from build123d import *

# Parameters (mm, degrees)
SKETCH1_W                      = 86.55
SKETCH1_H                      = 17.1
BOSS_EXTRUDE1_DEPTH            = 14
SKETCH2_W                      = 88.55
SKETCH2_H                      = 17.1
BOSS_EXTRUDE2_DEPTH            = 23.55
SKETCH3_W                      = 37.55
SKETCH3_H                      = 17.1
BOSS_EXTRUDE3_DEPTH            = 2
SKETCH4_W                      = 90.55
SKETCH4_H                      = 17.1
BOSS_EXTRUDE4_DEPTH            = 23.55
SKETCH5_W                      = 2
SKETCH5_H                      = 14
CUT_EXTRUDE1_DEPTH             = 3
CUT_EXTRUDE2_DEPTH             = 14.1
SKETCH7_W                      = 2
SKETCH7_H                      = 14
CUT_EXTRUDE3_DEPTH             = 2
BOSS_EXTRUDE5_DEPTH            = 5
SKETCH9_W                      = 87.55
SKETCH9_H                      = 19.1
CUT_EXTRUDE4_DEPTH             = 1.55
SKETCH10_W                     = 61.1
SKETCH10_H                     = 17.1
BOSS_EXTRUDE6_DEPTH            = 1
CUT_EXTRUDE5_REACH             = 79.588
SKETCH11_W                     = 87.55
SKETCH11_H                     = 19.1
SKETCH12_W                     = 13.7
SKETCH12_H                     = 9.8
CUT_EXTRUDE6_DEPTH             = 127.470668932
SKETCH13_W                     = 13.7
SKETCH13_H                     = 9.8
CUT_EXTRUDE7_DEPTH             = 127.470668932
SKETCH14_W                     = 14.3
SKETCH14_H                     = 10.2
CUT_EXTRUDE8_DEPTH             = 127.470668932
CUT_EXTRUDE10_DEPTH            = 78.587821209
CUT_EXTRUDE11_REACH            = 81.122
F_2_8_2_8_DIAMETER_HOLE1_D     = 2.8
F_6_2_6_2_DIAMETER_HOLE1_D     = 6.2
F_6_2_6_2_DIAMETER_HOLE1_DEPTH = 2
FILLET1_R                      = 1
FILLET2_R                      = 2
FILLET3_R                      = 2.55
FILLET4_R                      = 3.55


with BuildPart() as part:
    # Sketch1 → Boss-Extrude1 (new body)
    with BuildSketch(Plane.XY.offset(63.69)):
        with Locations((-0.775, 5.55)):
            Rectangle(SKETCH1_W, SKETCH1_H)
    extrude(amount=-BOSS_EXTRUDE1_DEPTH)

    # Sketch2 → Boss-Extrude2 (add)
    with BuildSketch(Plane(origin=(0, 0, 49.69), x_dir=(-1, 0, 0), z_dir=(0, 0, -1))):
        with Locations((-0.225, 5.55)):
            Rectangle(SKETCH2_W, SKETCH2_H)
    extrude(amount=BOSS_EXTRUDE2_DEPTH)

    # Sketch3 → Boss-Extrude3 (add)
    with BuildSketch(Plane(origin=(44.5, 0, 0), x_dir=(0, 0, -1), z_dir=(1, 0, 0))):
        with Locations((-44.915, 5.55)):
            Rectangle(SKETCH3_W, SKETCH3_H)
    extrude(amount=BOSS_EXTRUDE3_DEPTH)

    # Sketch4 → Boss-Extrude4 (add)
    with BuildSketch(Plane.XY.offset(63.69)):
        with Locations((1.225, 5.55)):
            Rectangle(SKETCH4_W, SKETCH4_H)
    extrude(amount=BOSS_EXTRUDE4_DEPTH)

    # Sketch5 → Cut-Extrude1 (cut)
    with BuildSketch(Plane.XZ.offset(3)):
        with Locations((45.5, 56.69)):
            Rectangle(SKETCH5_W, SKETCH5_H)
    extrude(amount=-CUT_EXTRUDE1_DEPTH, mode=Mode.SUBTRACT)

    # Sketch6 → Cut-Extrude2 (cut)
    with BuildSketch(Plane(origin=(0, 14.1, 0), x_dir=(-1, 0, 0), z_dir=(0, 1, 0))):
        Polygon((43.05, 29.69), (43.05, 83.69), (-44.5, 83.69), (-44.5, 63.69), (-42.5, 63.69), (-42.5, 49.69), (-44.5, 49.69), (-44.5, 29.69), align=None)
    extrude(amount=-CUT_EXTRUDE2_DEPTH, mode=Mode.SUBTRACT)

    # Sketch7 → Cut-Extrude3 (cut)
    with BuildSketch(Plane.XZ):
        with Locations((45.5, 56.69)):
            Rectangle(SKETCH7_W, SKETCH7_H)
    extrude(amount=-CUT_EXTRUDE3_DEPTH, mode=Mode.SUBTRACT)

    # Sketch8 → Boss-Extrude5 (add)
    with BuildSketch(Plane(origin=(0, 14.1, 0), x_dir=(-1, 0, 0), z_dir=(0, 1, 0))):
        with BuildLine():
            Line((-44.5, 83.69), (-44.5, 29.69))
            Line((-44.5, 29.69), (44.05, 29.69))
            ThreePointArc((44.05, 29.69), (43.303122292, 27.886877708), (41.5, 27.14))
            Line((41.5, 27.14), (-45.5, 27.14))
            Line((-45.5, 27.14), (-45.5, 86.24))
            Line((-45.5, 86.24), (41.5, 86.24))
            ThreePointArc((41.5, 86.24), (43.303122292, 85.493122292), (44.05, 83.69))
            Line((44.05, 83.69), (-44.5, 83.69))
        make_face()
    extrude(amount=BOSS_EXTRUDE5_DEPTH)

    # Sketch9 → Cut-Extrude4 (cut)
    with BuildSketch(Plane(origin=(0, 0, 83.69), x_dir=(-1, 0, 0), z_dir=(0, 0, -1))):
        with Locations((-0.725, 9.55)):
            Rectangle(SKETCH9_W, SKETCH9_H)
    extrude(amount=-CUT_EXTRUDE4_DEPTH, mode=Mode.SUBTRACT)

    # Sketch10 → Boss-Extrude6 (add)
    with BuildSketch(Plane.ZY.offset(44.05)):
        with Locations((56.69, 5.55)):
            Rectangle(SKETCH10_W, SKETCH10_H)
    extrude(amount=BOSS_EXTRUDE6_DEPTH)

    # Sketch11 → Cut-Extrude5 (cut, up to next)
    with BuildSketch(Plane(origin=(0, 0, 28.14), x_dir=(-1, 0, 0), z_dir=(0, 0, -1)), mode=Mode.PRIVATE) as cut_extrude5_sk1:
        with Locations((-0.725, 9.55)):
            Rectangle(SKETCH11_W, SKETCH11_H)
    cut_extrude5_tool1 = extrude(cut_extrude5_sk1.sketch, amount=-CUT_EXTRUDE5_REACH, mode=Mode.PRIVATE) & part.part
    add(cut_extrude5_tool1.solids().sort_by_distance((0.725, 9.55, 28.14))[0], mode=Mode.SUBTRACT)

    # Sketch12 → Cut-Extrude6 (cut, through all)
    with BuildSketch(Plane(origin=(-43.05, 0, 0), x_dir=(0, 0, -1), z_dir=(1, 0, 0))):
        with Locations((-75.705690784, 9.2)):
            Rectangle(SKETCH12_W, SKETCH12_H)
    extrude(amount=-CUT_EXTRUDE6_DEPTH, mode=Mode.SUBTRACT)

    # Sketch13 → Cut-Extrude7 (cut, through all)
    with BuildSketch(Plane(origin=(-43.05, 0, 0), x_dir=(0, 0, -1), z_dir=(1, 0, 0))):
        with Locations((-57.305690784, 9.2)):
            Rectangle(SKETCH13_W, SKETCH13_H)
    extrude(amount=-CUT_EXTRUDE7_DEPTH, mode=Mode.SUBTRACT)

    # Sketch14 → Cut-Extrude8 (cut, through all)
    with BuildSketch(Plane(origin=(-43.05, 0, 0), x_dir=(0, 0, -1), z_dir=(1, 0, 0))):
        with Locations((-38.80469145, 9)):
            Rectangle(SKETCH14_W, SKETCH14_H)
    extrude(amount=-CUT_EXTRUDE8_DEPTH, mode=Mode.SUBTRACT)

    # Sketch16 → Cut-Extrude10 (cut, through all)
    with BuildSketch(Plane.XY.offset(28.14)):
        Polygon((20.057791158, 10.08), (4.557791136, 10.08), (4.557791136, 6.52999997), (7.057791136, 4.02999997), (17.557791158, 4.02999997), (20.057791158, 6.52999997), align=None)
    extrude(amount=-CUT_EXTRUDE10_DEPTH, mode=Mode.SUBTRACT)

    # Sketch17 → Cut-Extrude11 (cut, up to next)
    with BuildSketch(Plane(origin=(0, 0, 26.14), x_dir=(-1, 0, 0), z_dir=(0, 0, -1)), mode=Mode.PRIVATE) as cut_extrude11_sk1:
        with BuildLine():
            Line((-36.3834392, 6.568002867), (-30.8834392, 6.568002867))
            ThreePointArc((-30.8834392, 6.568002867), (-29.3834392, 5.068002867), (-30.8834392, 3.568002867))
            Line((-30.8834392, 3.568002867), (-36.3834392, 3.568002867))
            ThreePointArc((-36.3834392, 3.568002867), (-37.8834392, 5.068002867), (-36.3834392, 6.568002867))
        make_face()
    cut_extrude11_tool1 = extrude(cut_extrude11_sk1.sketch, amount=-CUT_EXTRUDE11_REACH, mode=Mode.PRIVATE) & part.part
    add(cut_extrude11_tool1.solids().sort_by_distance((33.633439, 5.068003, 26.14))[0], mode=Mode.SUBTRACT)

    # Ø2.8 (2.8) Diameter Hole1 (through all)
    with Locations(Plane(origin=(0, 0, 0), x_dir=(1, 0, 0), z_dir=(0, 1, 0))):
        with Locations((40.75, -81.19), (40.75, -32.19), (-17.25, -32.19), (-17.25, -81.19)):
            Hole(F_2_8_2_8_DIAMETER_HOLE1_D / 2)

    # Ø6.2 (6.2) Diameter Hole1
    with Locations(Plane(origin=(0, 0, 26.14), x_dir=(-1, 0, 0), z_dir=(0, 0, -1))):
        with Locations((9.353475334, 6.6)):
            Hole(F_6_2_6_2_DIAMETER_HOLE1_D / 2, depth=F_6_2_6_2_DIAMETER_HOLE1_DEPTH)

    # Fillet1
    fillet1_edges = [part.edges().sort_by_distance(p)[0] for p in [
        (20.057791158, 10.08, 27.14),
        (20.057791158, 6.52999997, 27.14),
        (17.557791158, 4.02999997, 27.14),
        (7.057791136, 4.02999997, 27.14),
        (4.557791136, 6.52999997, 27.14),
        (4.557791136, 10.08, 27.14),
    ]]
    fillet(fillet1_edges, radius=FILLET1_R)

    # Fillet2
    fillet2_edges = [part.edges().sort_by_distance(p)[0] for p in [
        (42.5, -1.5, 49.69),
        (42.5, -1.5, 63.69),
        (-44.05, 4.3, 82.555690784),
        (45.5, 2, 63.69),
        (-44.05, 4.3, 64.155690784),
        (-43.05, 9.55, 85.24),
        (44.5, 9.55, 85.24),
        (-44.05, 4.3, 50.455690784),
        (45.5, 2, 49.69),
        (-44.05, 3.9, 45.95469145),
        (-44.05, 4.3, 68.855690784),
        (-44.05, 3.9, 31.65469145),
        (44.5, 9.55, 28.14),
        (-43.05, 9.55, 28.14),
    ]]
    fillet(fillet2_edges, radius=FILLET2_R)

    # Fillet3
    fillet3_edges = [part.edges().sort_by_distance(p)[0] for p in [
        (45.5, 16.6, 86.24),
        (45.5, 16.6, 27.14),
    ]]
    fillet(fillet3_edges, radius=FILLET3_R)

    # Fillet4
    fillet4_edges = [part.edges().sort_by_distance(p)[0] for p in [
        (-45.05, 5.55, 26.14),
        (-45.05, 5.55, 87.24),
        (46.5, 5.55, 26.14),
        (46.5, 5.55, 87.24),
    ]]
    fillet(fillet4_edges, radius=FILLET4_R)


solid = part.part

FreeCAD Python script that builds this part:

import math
import FreeCAD as App
import Part
import Sketcher

V = App.Vector
Q = App.Units.Quantity


def edges_at(feature, points):
    """Names of the edges that pass closest to the given points."""
    edges = feature.Shape.Edges
    near = lambda p: min(range(len(edges)), key=lambda i: edges[i].distToShape(Part.Vertex(*p))[0])
    return sorted({f"Edge{near(p) + 1}" for p in points})


def add_polygon(sketch, points):
    """Adds a closed chain of lines whose ends are joined by coincident constraints."""
    first, n = sketch.GeometryCount, len(points)
    for a, b in zip(points, points[1:] + points[:1]):
        sketch.addGeometry(Part.LineSegment(App.Vector(*a, 0), App.Vector(*b, 0)), False)
    for i in range(n):
        sketch.addConstraint(Sketcher.Constraint("Coincident", first + i, 2, first + (i + 1) % n, 1))

doc = App.newDocument("Part")
params = doc.addObject("Spreadsheet::Sheet", "Params")
for row, (alias, value) in enumerate([
    ("sketch1_height", "17.1 mm"),
    ("sketch1_width", "86.55 mm"),
    ("pad1_length", "14 mm"),
    ("sketch2_height", "17.1 mm"),
    ("sketch2_width", "88.55 mm"),
    ("pad2_length", "23.55 mm"),
    ("sketch3_width", "17.1 mm"),
    ("sketch3_height", "37.55 mm"),
    ("pad3_length", "2 mm"),
    ("sketch4_height", "17.1 mm"),
    ("sketch4_width", "90.55 mm"),
    ("pad4_length", "23.55 mm"),
    ("sketch5_width", "2 mm"),
    ("sketch5_height", "14 mm"),
    ("pocket1_length", "3 mm"),
    ("sketch6_width", "2 mm"),
    ("sketch6_height", "54 mm"),
    ("sketch6_height2", "20 mm"),
    ("sketch6_width2", "87.55 mm"),
    ("pocket2_length", "14.1 mm"),
    ("sketch7_width", "2 mm"),
    ("sketch7_height", "14 mm"),
    ("pocket3_length", "2 mm"),
    ("sketch8_width", "87 mm"),
    ("sketch8_height", "54 mm"),
    ("sketch8_radius", "2.55 mm"),
    ("sketch8_height2", "59.1 mm"),
    ("pad5_length", "5 mm"),
    ("sketch9_height", "19.1 mm"),
    ("sketch9_width", "87.55 mm"),
    ("pocket4_length", "1.55 mm"),
    ("sketch10_width", "17.1 mm"),
    ("sketch10_height", "61.1 mm"),
    ("pad6_length", "1 mm"),
    ("sketch11_height", "19.1 mm"),
    ("sketch11_width", "87.55 mm"),
    ("sketch12_width", "9.8 mm"),
    ("sketch12_height", "13.7 mm"),
    ("sketch13_width", "9.8 mm"),
    ("sketch13_height", "13.7 mm"),
    ("sketch14_width", "10.2 mm"),
    ("sketch14_height", "14.3 mm"),
    ("sketch15_width", "15.5 mm"),
    ("sketch15_width2", "10.5 mm"),
    ("sketch15_height", "3.55 mm"),
    ("sketch16_radius", "1.5 mm"),
    ("sketch16_width", "5.5 mm"),
    ("sketch17_diameter", "2.8 mm"),
    ("hole_diameter", "2.8 mm"),
    ("sketch18_diameter", "6.2 mm"),
    ("hole2_diameter", "6.2 mm"),
    ("hole2_depth", "2 mm"),
    ("fillet_radius", "1 mm"),
    ("fillet2_radius", "2 mm"),
    ("fillet3_radius", "2.55 mm"),
    ("fillet4_radius", "3.55 mm"),
], start=1):
    params.set(f"A{row}", alias)
    params.set(f"B{row}", "=" + value)
    params.setAlias(f"B{row}", alias)

body = doc.addObject("PartDesign::Body", "Body")

# Sketch on XY plane
sketch1 = body.newObject("Sketcher::SketchObject", "Sketch")
sketch1.AttachmentSupport = (doc.getObject("XY_Plane"), [""])
sketch1.MapMode = "FlatFace"
sketch1.AttachmentOffset = App.Placement(V(0, 0, 63.69), App.Rotation())
add_polygon(sketch1, [(-44, 14), (-44, -3), (42, -3), (42, 14)])  # lines 0-3
sketch1.addConstraint([
    Sketcher.Constraint("Vertical", 0),
    Sketcher.Constraint("Horizontal", 1),
    Sketcher.Constraint("Vertical", 2),
    Sketcher.Constraint("Horizontal", 3),
    Sketcher.Constraint("DistanceY", 0, 2, 0, 1, Q("17.1 mm")),
    Sketcher.Constraint("DistanceY", 0, 2, -1, 1, Q("3 mm")),
    Sketcher.Constraint("DistanceX", 1, 1, 1, 2, Q("86.55 mm")),
    Sketcher.Constraint("DistanceX", -1, 1, 1, 2, Q("42.5 mm")),
])
sketch1.setExpression("Constraints[8]", "Params.sketch1_height")
sketch1.setExpression("Constraints[10]", "Params.sketch1_width")
pad1 = body.newObject("PartDesign::Pad", "Pad")
pad1.Profile = sketch1
pad1.setExpression("Length", "Params.pad1_length")
pad1.Reversed = True

# Sketch on XY plane
sketch2 = body.newObject("Sketcher::SketchObject", "Sketch001")
sketch2.AttachmentSupport = (doc.getObject("XY_Plane"), [""])
sketch2.MapMode = "FlatFace"
sketch2.AttachmentOffset = App.Placement(V(0, 0, 49.69), App.Rotation())
add_polygon(sketch2, [(44, 14), (44, -3), (-44, -3), (-44, 14)])  # lines 0-3
sketch2.addConstraint([
    Sketcher.Constraint("Vertical", 0),
    Sketcher.Constraint("Horizontal", 1),
    Sketcher.Constraint("Vertical", 2),
    Sketcher.Constraint("Horizontal", 3),
    Sketcher.Constraint("DistanceY", 0, 2, 0, 1, Q("17.1 mm")),
    Sketcher.Constraint("DistanceY", 0, 2, -1, 1, Q("3 mm")),
    Sketcher.Constraint("DistanceX", 1, 2, 1, 1, Q("88.55 mm")),
    Sketcher.Constraint("DistanceX", -1, 1, 0, 2, Q("44.5 mm")),
])
sketch2.setExpression("Constraints[8]", "Params.sketch2_height")
sketch2.setExpression("Constraints[10]", "Params.sketch2_width")
pad2 = body.newObject("PartDesign::Pad", "Pad001")
pad2.Profile = sketch2
pad2.setExpression("Length", "Params.pad2_length")
pad2.Reversed = True

# Sketch on YZ plane
sketch3 = body.newObject("Sketcher::SketchObject", "Sketch002")
sketch3.AttachmentSupport = (doc.getObject("YZ_Plane"), [""])
sketch3.MapMode = "FlatFace"
sketch3.AttachmentOffset = App.Placement(V(0, 0, 44.5), App.Rotation())
add_polygon(sketch3, [(14, 64), (-3, 64), (-3, 26), (14, 26)])  # lines 0-3
sketch3.addConstraint([
    Sketcher.Constraint("Horizontal", 0),
    Sketcher.Constraint("Vertical", 1),
    Sketcher.Constraint("Horizontal", 2),
    Sketcher.Constraint("Vertical", 3),
    Sketcher.Constraint("DistanceX", 0, 2, 0, 1, Q("17.1 mm")),
    Sketcher.Constraint("DistanceX", 0, 2, -1, 1, Q("3 mm")),
    Sketcher.Constraint("DistanceY", 1, 2, 1, 1, Q("37.55 mm")),
    Sketcher.Constraint("DistanceY", -1, 1, 0, 2, Q("63.69 mm")),
])
sketch3.setExpression("Constraints[8]", "Params.sketch3_width")
sketch3.setExpression("Constraints[10]", "Params.sketch3_height")
pad3 = body.newObject("PartDesign::Pad", "Pad002")
pad3.Profile = sketch3
pad3.setExpression("Length", "Params.pad3_length")

# Sketch on XY plane
sketch4 = body.newObject("Sketcher::SketchObject", "Sketch003")
sketch4.AttachmentSupport = (doc.getObject("XY_Plane"), [""])
sketch4.MapMode = "FlatFace"
sketch4.AttachmentOffset = App.Placement(V(0, 0, 63.69), App.Rotation())
add_polygon(sketch4, [(-44, 14), (-44, -3), (46, -3), (46, 14)])  # lines 0-3
sketch4.addConstraint([
    Sketcher.Constraint("Vertical", 0),
    Sketcher.Constraint("Horizontal", 1),
    Sketcher.Constraint("Vertical", 2),
    Sketcher.Constraint("Horizontal", 3),
    Sketcher.Constraint("DistanceY", 0, 2, 0, 1, Q("17.1 mm")),
    Sketcher.Constraint("DistanceY", 0, 2, -1, 1, Q("3 mm")),
    Sketcher.Constraint("DistanceX", 1, 1, 1, 2, Q("90.55 mm")),
    Sketcher.Constraint("DistanceX", -1, 1, 1, 2, Q("46.5 mm")),
])
sketch4.setExpression("Constraints[8]", "Params.sketch4_height")
sketch4.setExpression("Constraints[10]", "Params.sketch4_width")
pad4 = body.newObject("PartDesign::Pad", "Pad003")
pad4.Profile = sketch4
pad4.setExpression("Length", "Params.pad4_length")

# Sketch on XZ plane
sketch5 = body.newObject("Sketcher::SketchObject", "Sketch004")
sketch5.AttachmentSupport = (doc.getObject("XZ_Plane"), [""])
sketch5.MapMode = "FlatFace"
sketch5.AttachmentOffset = App.Placement(V(0, 0, 3), App.Rotation())
add_polygon(sketch5, [(44.5, 63.7), (44.5, 49.7), (46.5, 49.7), (46.5, 63.7)])  # lines 0-3
sketch5.addConstraint([
    Sketcher.Constraint("Vertical", 0),
    Sketcher.Constraint("Horizontal", 1),
    Sketcher.Constraint("Vertical", 2),
    Sketcher.Constraint("Horizontal", 3),
    Sketcher.Constraint("DistanceX", 1, 1, 1, 2, Q("2 mm")),
    Sketcher.Constraint("DistanceY", 0, 2, 0, 1, Q("14 mm")),
    Sketcher.Constraint("DistanceX", -1, 1, 0, 2, Q("44.5 mm")),
    Sketcher.Constraint("DistanceY", -1, 1, 0, 2, Q("49.69 mm")),
])
sketch5.setExpression("Constraints[8]", "Params.sketch5_width")
sketch5.setExpression("Constraints[9]", "Params.sketch5_height")
pocket1 = body.newObject("PartDesign::Pocket", "Pocket")
pocket1.Profile = sketch5
pocket1.setExpression("Length", "Params.pocket1_length")

# Sketch on XZ plane
sketch6 = body.newObject("Sketcher::SketchObject", "Sketch005")
sketch6.AttachmentSupport = (doc.getObject("XZ_Plane"), [""])
sketch6.MapMode = "FlatFace"
sketch6.AttachmentOffset = App.Placement(V(0, 0, -14.1), App.Rotation())
add_polygon(sketch6, [(-43, 29.7), (-43, 83.7), (44.5, 83.7), (44.5, 63.7), (42.5, 63.7), (42.5, 49.7), (44.5, 49.7), (44.5, 29.7)])  # lines 0-7
sketch6.addConstraint([
    Sketcher.Constraint("Vertical", 0),
    Sketcher.Constraint("Horizontal", 1),
    Sketcher.Constraint("Vertical", 2),
    Sketcher.Constraint("Horizontal", 3),
    Sketcher.Constraint("Vertical", 4),
    Sketcher.Constraint("Horizontal", 5),
    Sketcher.Constraint("Vertical", 6),
    Sketcher.Constraint("Horizontal", 7),
    Sketcher.Constraint("Vertical", 2, 2, 5, 2),
    Sketcher.Constraint("Equal", 2, 6),
    Sketcher.Constraint("DistanceX", 3, 2, 3, 1, Q("2 mm")),
    Sketcher.Constraint("DistanceY", 0, 1, 0, 2, Q("54 mm")),
    Sketcher.Constraint("DistanceY", 2, 2, 2, 1, Q("20 mm")),
    Sketcher.Constraint("DistanceX", 1, 1, 1, 2, Q("87.55 mm")),
    Sketcher.Constraint("DistanceX", -1, 1, 1, 2, Q("44.5 mm")),
    Sketcher.Constraint("DistanceY", -1, 1, 0, 2, Q("83.69 mm")),
])
sketch6.setExpression("Constraints[18]", "Params.sketch6_width")
sketch6.setExpression("Constraints[19]", "Params.sketch6_height")
sketch6.setExpression("Constraints[20]", "Params.sketch6_height2")
sketch6.setExpression("Constraints[21]", "Params.sketch6_width2")
pocket2 = body.newObject("PartDesign::Pocket", "Pocket001")
pocket2.Profile = sketch6
pocket2.setExpression("Length", "Params.pocket2_length")
pocket2.Reversed = True

# Sketch on XZ plane
sketch7 = body.newObject("Sketcher::SketchObject", "Sketch006")
sketch7.AttachmentSupport = (doc.getObject("XZ_Plane"), [""])
sketch7.MapMode = "FlatFace"
add_polygon(sketch7, [(44.5, 63.7), (44.5, 49.7), (46.5, 49.7), (46.5, 63.7)])  # lines 0-3
sketch7.addConstraint([
    Sketcher.Constraint("Vertical", 0),
    Sketcher.Constraint("Horizontal", 1),
    Sketcher.Constraint("Vertical", 2),
    Sketcher.Constraint("Horizontal", 3),
    Sketcher.Constraint("DistanceX", 1, 1, 1, 2, Q("2 mm")),
    Sketcher.Constraint("DistanceY", 0, 2, 0, 1, Q("14 mm")),
    Sketcher.Constraint("DistanceX", -1, 1, 0, 2, Q("44.5 mm")),
    Sketcher.Constraint("DistanceY", -1, 1, 0, 2, Q("49.69 mm")),
])
sketch7.setExpression("Constraints[8]", "Params.sketch7_width")
sketch7.setExpression("Constraints[9]", "Params.sketch7_height")
pocket3 = body.newObject("PartDesign::Pocket", "Pocket002")
pocket3.Profile = sketch7
pocket3.setExpression("Length", "Params.pocket3_length")

# Sketch on XZ plane
sketch8 = body.newObject("Sketcher::SketchObject", "Sketch007")
sketch8.AttachmentSupport = (doc.getObject("XZ_Plane"), [""])
sketch8.MapMode = "FlatFace"
sketch8.AttachmentOffset = App.Placement(V(0, 0, -14.1), App.Rotation())
sketch8.addGeometry([
    Part.LineSegment(V(44.5, 29.7, 0), V(44.5, 83.7, 0)),  # 0
    Part.LineSegment(V(44.5, 83.7, 0), V(-44, 83.7, 0)),  # 1
    Part.ArcOfCircle(Part.Circle(V(-41.5, 83.7, 0), V(0, 0, 1), 2.5), math.radians(90), math.radians(180)),  # 2
    Part.LineSegment(V(-41.5, 86.2, 0), V(45.5, 86.2, 0)),  # 3
    Part.LineSegment(V(45.5, 86.2, 0), V(45.5, 27.1, 0)),  # 4
    Part.LineSegment(V(45.5, 27.1, 0), V(-41.5, 27.1, 0)),  # 5
    Part.ArcOfCircle(Part.Circle(V(-41.5, 29.7, 0), V(0, 0, 1), 2.5), math.radians(180), math.radians(270)),  # 6
    Part.LineSegment(V(-44, 29.7, 0), V(44.5, 29.7, 0)),  # 7
], False)
sketch8.addConstraint([
    Sketcher.Constraint("Coincident", 0, 2, 1, 1),
    Sketcher.Constraint("Coincident", 1, 2, 2, 2),
    Sketcher.Constraint("Tangent", 2, 1, 3, 1),
    Sketcher.Constraint("Coincident", 3, 2, 4, 1),
    Sketcher.Constraint("Coincident", 4, 2, 5, 1),
    Sketcher.Constraint("Tangent", 5, 2, 6, 2),
    Sketcher.Constraint("Coincident", 6, 1, 7, 1),
    Sketcher.Constraint("Coincident", 7, 2, 0, 1),
    Sketcher.Constraint("Vertical", 0),
    Sketcher.Constraint("Horizontal", 1),
    Sketcher.Constraint("Horizontal", 3),
    Sketcher.Constraint("Vertical", 4),
    Sketcher.Constraint("Horizontal", 5),
    Sketcher.Constraint("Horizontal", 7),
    Sketcher.Constraint("Equal", 2, 6),
    Sketcher.Constraint("Horizontal", 2, 3, 0, 2),
    Sketcher.Constraint("Vertical", 2, 3, 6, 3),
    Sketcher.Constraint("DistanceX", 3, 1, 3, 2, Q("87 mm")),
    Sketcher.Constraint("DistanceY", 0, 1, 0, 2, Q("54 mm")),
    Sketcher.Constraint("Radius", 2, Q("2.55 mm")),
    Sketcher.Constraint("DistanceY", 4, 2, 4, 1, Q("59.1 mm")),
    Sketcher.Constraint("DistanceX", 2, 3, 0, 2, Q("86 mm")),
    Sketcher.Constraint("DistanceX", 2, 3, -1, 1, Q("41.5 mm")),
    Sketcher.Constraint("DistanceY", -1, 1, 2, 3, Q("83.69 mm")),
])
sketch8.setExpression("Constraints[17]", "Params.sketch8_width")
sketch8.setExpression("Constraints[18]", "Params.sketch8_height")
sketch8.setExpression("Constraints[19]", "Params.sketch8_radius")
sketch8.setExpression("Constraints[20]", "Params.sketch8_height2")
pad5 = body.newObject("PartDesign::Pad", "Pad004")
pad5.Profile = sketch8
pad5.setExpression("Length", "Params.pad5_length")
pad5.Reversed = True

# Sketch on XY plane
sketch9 = body.newObject("Sketcher::SketchObject", "Sketch008")
sketch9.AttachmentSupport = (doc.getObject("XY_Plane"), [""])
sketch9.MapMode = "FlatFace"
sketch9.AttachmentOffset = App.Placement(V(0, 0, 83.69), App.Rotation())
add_polygon(sketch9, [(44, 19), (44, 0), (-43, 0), (-43, 19)])  # lines 0-3
sketch9.addConstraint([
    Sketcher.Constraint("Vertical", 0),
    Sketcher.Constraint("Horizontal", 1),
    Sketcher.Constraint("Vertical", 2),
    Sketcher.Constraint("Horizontal", 3),
    Sketcher.Constraint("PointOnObject", 0, 2, -1),
    Sketcher.Constraint("DistanceY", 0, 2, 0, 1, Q("19.1 mm")),
    Sketcher.Constraint("DistanceX", 1, 2, 1, 1, Q("87.55 mm")),
    Sketcher.Constraint("DistanceX", -1, 1, 0, 2, Q("44.5 mm")),
])
sketch9.setExpression("Constraints[9]", "Params.sketch9_height")
sketch9.setExpression("Constraints[10]", "Params.sketch9_width")
pocket4 = body.newObject("PartDesign::Pocket", "Pocket003")
pocket4.Profile = sketch9
pocket4.setExpression("Length", "Params.pocket4_length")
pocket4.Reversed = True

# Sketch on YZ plane
sketch10 = body.newObject("Sketcher::SketchObject", "Sketch009")
sketch10.AttachmentSupport = (doc.getObject("YZ_Plane"), [""])
sketch10.MapMode = "FlatFace"
sketch10.AttachmentOffset = App.Placement(V(0, 0, -44.05), App.Rotation())
add_polygon(sketch10, [(14, 26), (-3, 26), (-3, 87), (14, 87)])  # lines 0-3
sketch10.addConstraint([
    Sketcher.Constraint("Horizontal", 0),
    Sketcher.Constraint("Vertical", 1),
    Sketcher.Constraint("Horizontal", 2),
    Sketcher.Constraint("Vertical", 3),
    Sketcher.Constraint("DistanceX", 0, 2, 0, 1, Q("17.1 mm")),
    Sketcher.Constraint("DistanceY", 1, 1, 1, 2, Q("61.1 mm")),
    Sketcher.Constraint("DistanceX", 0, 2, -1, 1, Q("3 mm")),
    Sketcher.Constraint("DistanceY", -1, 1, 0, 2, Q("26.14 mm")),
])
sketch10.setExpression("Constraints[8]", "Params.sketch10_width")
sketch10.setExpression("Constraints[9]", "Params.sketch10_height")
pad6 = body.newObject("PartDesign::Pad", "Pad005")
pad6.Profile = sketch10
pad6.setExpression("Length", "Params.pad6_length")
pad6.Reversed = True

# Sketch on XY plane
sketch11 = body.newObject("Sketcher::SketchObject", "Sketch010")
sketch11.AttachmentSupport = (doc.getObject("XY_Plane"), [""])
sketch11.MapMode = "FlatFace"
sketch11.AttachmentOffset = App.Placement(V(0, 0, 28.14), App.Rotation())
add_polygon(sketch11, [(44, 19), (44, 0), (-43, 0), (-43, 19)])  # lines 0-3
sketch11.addConstraint([
    Sketcher.Constraint("Vertical", 0),
    Sketcher.Constraint("Horizontal", 1),
    Sketcher.Constraint("Vertical", 2),
    Sketcher.Constraint("Horizontal", 3),
    Sketcher.Constraint("PointOnObject", 0, 2, -1),
    Sketcher.Constraint("DistanceY", 0, 2, 0, 1, Q("19.1 mm")),
    Sketcher.Constraint("DistanceX", 1, 2, 1, 1, Q("87.55 mm")),
    Sketcher.Constraint("DistanceX", -1, 1, 0, 2, Q("44.5 mm")),
])
sketch11.setExpression("Constraints[9]", "Params.sketch11_height")
sketch11.setExpression("Constraints[10]", "Params.sketch11_width")
pocket5 = body.newObject("PartDesign::Pocket", "Pocket004")
pocket5.Profile = sketch11
pocket5.Type = "UpToFirst"
pocket5.Reversed = True

# Sketch on YZ plane
sketch12 = body.newObject("Sketcher::SketchObject", "Sketch011")
sketch12.AttachmentSupport = (doc.getObject("YZ_Plane"), [""])
sketch12.MapMode = "FlatFace"
sketch12.AttachmentOffset = App.Placement(V(0, 0, -43.05), App.Rotation())
add_polygon(sketch12, [(14, 83), (4, 83), (4, 69), (14, 69)])  # lines 0-3
sketch12.addConstraint([
    Sketcher.Constraint("Horizontal", 0),
    Sketcher.Constraint("Vertical", 1),
    Sketcher.Constraint("Horizontal", 2),
    Sketcher.Constraint("Vertical", 3),
    Sketcher.Constraint("DistanceX", 0, 2, 0, 1, Q("9.8 mm")),
    Sketcher.Constraint("DistanceY", 1, 2, 1, 1, Q("13.7 mm")),
    Sketcher.Constraint("DistanceX", -1, 1, 0, 2, Q("4.3 mm")),
    Sketcher.Constraint("DistanceY", -1, 1, 0, 2, Q("82.555691 mm")),
])
sketch12.setExpression("Constraints[8]", "Params.sketch12_width")
sketch12.setExpression("Constraints[9]", "Params.sketch12_height")
pocket6 = body.newObject("PartDesign::Pocket", "Pocket005")
pocket6.Profile = sketch12
pocket6.Type = "ThroughAll"

# Sketch on YZ plane
sketch13 = body.newObject("Sketcher::SketchObject", "Sketch012")
sketch13.AttachmentSupport = (doc.getObject("YZ_Plane"), [""])
sketch13.MapMode = "FlatFace"
sketch13.AttachmentOffset = App.Placement(V(0, 0, -43.05), App.Rotation())
add_polygon(sketch13, [(14, 64), (4, 64), (4, 50), (14, 50)])  # lines 0-3
sketch13.addConstraint([
    Sketcher.Constraint("Horizontal", 0),
    Sketcher.Constraint("Vertical", 1),
    Sketcher.Constraint("Horizontal", 2),
    Sketcher.Constraint("Vertical", 3),
    Sketcher.Constraint("DistanceX", 0, 2, 0, 1, Q("9.8 mm")),
    Sketcher.Constraint("DistanceY", 1, 2, 1, 1, Q("13.7 mm")),
    Sketcher.Constraint("DistanceX", -1, 1, 0, 2, Q("4.3 mm")),
    Sketcher.Constraint("DistanceY", -1, 1, 0, 2, Q("64.155691 mm")),
])
sketch13.setExpression("Constraints[8]", "Params.sketch13_width")
sketch13.setExpression("Constraints[9]", "Params.sketch13_height")
pocket7 = body.newObject("PartDesign::Pocket", "Pocket006")
pocket7.Profile = sketch13
pocket7.Type = "ThroughAll"

# Sketch on YZ plane
sketch14 = body.newObject("Sketcher::SketchObject", "Sketch013")
sketch14.AttachmentSupport = (doc.getObject("YZ_Plane"), [""])
sketch14.MapMode = "FlatFace"
sketch14.AttachmentOffset = App.Placement(V(0, 0, -43.05), App.Rotation())
add_polygon(sketch14, [(14, 46), (4, 46), (4, 32), (14, 32)])  # lines 0-3
sketch14.addConstraint([
    Sketcher.Constraint("Horizontal", 0),
    Sketcher.Constraint("Vertical", 1),
    Sketcher.Constraint("Horizontal", 2),
    Sketcher.Constraint("Vertical", 3),
    Sketcher.Constraint("DistanceX", 0, 2, 0, 1, Q("10.2 mm")),
    Sketcher.Constraint("DistanceY", 1, 2, 1, 1, Q("14.3 mm")),
    Sketcher.Constraint("DistanceX", -1, 1, 0, 2, Q("3.9 mm")),
    Sketcher.Constraint("DistanceY", -1, 1, 0, 2, Q("45.954691 mm")),
])
sketch14.setExpression("Constraints[8]", "Params.sketch14_width")
sketch14.setExpression("Constraints[9]", "Params.sketch14_height")
pocket8 = body.newObject("PartDesign::Pocket", "Pocket007")
pocket8.Profile = sketch14
pocket8.Type = "ThroughAll"

# Sketch on XY plane
sketch15 = body.newObject("Sketcher::SketchObject", "Sketch014")
sketch15.AttachmentSupport = (doc.getObject("XY_Plane"), [""])
sketch15.MapMode = "FlatFace"
sketch15.AttachmentOffset = App.Placement(V(0, 0, 28.14), App.Rotation())
add_polygon(sketch15, [(20.1, 10.1), (4.6, 10.1), (4.6, 6.5), (7.1, 4), (17.6, 4), (20.1, 6.5)])  # lines 0-5
sketch15.addConstraint([
    Sketcher.Constraint("Horizontal", 0),
    Sketcher.Constraint("Vertical", 1),
    Sketcher.Constraint("Horizontal", 3),
    Sketcher.Constraint("Vertical", 5),
    Sketcher.Constraint("Perpendicular", 2, 4),
    Sketcher.Constraint("Horizontal", 1, 2, 4, 2),
    Sketcher.Constraint("Equal", 2, 4),
    Sketcher.Constraint("DistanceX", 0, 2, 0, 1, Q("15.5 mm")),
    Sketcher.Constraint("DistanceX", 3, 1, 3, 2, Q("10.5 mm")),
    Sketcher.Constraint("DistanceY", 1, 2, 1, 1, Q("3.55 mm")),
    Sketcher.Constraint("DistanceY", -1, 1, 0, 2, Q("10.08 mm")),
    Sketcher.Constraint("DistanceX", -1, 1, 0, 2, Q("4.557791 mm")),
])
sketch15.setExpression("Constraints[13]", "Params.sketch15_width")
sketch15.setExpression("Constraints[14]", "Params.sketch15_width2")
sketch15.setExpression("Constraints[15]", "Params.sketch15_height")
pocket9 = body.newObject("PartDesign::Pocket", "Pocket008")
pocket9.Profile = sketch15
pocket9.Type = "ThroughAll"

# Sketch on XY plane
sketch16 = body.newObject("Sketcher::SketchObject", "Sketch015")
sketch16.AttachmentSupport = (doc.getObject("XY_Plane"), [""])
sketch16.MapMode = "FlatFace"
sketch16.AttachmentOffset = App.Placement(V(0, 0, 26.14), App.Rotation())
sketch16.addGeometry([
    Part.LineSegment(V(30.9, 6.6, 0), V(36.4, 6.6, 0)),
    Part.ArcOfCircle(Part.Circle(V(36.4, 5.1, 0), V(0, 0, 1), 1.5), math.radians(-90), math.radians(90)),
    Part.LineSegment(V(36.4, 3.6, 0), V(30.9, 3.6, 0)),
    Part.ArcOfCircle(Part.Circle(V(30.9, 5.1, 0), V(0, 0, 1), 1.5), math.radians(90), math.radians(270)),
], False)
sketch16.addConstraint([
    Sketcher.Constraint("Tangent", 0, 2, 1, 2),
    Sketcher.Constraint("Tangent", 1, 1, 2, 1),
    Sketcher.Constraint("Tangent", 2, 2, 3, 2),
    Sketcher.Constraint("Tangent", 3, 1, 0, 1),
    Sketcher.Constraint("Horizontal", 0),
    Sketcher.Constraint("Horizontal", 2),
    Sketcher.Constraint("Radius", 1, Q("1.5 mm")),
    Sketcher.Constraint("DistanceX", 0, 1, 0, 2, Q("5.5 mm")),
    Sketcher.Constraint("DistanceX", -1, 1, 1, 3, Q("36.383439 mm")),
    Sketcher.Constraint("DistanceY", -1, 1, 1, 3, Q("5.068003 mm")),
])
sketch16.setExpression("Constraints[6]", "Params.sketch16_radius")
sketch16.setExpression("Constraints[7]", "Params.sketch16_width")
pocket10 = body.newObject("PartDesign::Pocket", "Pocket009")
pocket10.Profile = sketch16
pocket10.Type = "UpToFirst"
pocket10.Reversed = True

# Sketch on XZ plane
sketch17 = body.newObject("Sketcher::SketchObject", "Sketch016")
sketch17.AttachmentSupport = (doc.getObject("XZ_Plane"), [""])
sketch17.MapMode = "FlatFace"
sketch17.addGeometry([
    Part.Circle(V(40.8, 81.2, 0), V(0, 0, 1), 1.4),
    Part.Circle(V(40.8, 32.2, 0), V(0, 0, 1), 1.4),
    Part.Circle(V(-17.2, 32.2, 0), V(0, 0, 1), 1.4),
    Part.Circle(V(-17.2, 81.2, 0), V(0, 0, 1), 1.4),
], False)
sketch17.addConstraint([
    Sketcher.Constraint("Equal", 0, 1),
    Sketcher.Constraint("Equal", 1, 2),
    Sketcher.Constraint("Equal", 2, 3),
    Sketcher.Constraint("Horizontal", 1, 3, 2, 3),
    Sketcher.Constraint("Horizontal", 0, 3, 3, 3),
    Sketcher.Constraint("Vertical", 0, 3, 1, 3),
    Sketcher.Constraint("Vertical", 2, 3, 3, 3),
    Sketcher.Constraint("Diameter", 0, Q("2.8 mm")),
    Sketcher.Constraint("DistanceY", 1, 3, 0, 3, Q("49 mm")),
    Sketcher.Constraint("DistanceX", 2, 3, 1, 3, Q("58 mm")),
    Sketcher.Constraint("DistanceX", -1, 1, 0, 3, Q("40.75 mm")),
    Sketcher.Constraint("DistanceY", -1, 1, 0, 3, Q("81.19 mm")),
])
sketch17.setExpression("Constraints[7]", "Params.sketch17_diameter")
doc.recompute()
hole = body.newObject("PartDesign::Hole", "Hole")
hole.Profile = sketch17
hole.ThreadType = "None"
hole.setExpression("Diameter", "Params.hole_diameter")
hole.DepthType = "ThroughAll"
hole.Reversed = True

# Sketch on XY plane
sketch18 = body.newObject("Sketcher::SketchObject", "Sketch017")
sketch18.AttachmentSupport = (doc.getObject("XY_Plane"), [""])
sketch18.MapMode = "FlatFace"
sketch18.AttachmentOffset = App.Placement(V(0, 0, 26.14), App.Rotation())
sketch18.addGeometry(Part.Circle(V(-9.4, 6.6, 0), V(0, 0, 1), 3.1), False)
sketch18.addConstraint([
    Sketcher.Constraint("Diameter", 0, Q("6.2 mm")),
    Sketcher.Constraint("DistanceY", -1, 1, 0, 3, Q("6.6 mm")),
    Sketcher.Constraint("DistanceX", 0, 3, -1, 1, Q("9.353475 mm")),
])
sketch18.setExpression("Constraints[0]", "Params.sketch18_diameter")
doc.recompute()
hole2 = body.newObject("PartDesign::Hole", "Hole001")
hole2.Profile = sketch18
hole2.ThreadType = "None"
hole2.setExpression("Diameter", "Params.hole2_diameter")
hole2.DepthType = "Dimension"
hole2.setExpression("Depth", "Params.hole2_depth")
hole2.DrillPoint = "Flat"
hole2.Reversed = True
doc.recompute()

fillet = body.newObject("PartDesign::Fillet", "Fillet")
fillet.Base = (hole2, edges_at(hole2, [
    (20.058, 10.08, 27.14),
    (20.058, 6.53, 27.14),
    (17.558, 4.03, 27.14),
    (7.058, 4.03, 27.14),
    (4.558, 6.53, 27.14),
    (4.558, 10.08, 27.14),
]))
fillet.setExpression("Radius", "Params.fillet_radius")
doc.recompute()

fillet2 = body.newObject("PartDesign::Fillet", "Fillet001")
fillet2.Base = (fillet, edges_at(fillet, [
    (42.5, -1.5, 49.69),
    (42.5, -1.5, 63.69),
    (-44.05, 4.3, 82.556),
    (45.5, 2, 63.69),
    (-44.05, 4.3, 64.156),
    (-43.05, 9.55, 85.24),
    (44.5, 9.55, 85.24),
    (-44.05, 4.3, 50.456),
    (45.5, 2, 49.69),
    (-44.05, 3.9, 45.955),
    (-44.05, 4.3, 68.856),
    (-44.05, 3.9, 31.655),
    (44.5, 9.55, 28.14),
    (-43.05, 9.55, 28.14),
]))
fillet2.setExpression("Radius", "Params.fillet2_radius")
doc.recompute()

fillet3 = body.newObject("PartDesign::Fillet", "Fillet002")
fillet3.Base = (fillet2, edges_at(fillet2, [(45.5, 16.6, 86.24), (45.5, 16.6, 27.14)]))
fillet3.setExpression("Radius", "Params.fillet3_radius")
doc.recompute()

fillet4 = body.newObject("PartDesign::Fillet", "Fillet003")
fillet4.Base = (fillet3, edges_at(fillet3, [
    (-45.05, 5.55, 26.14),
    (-45.05, 5.55, 87.24),
    (46.5, 5.55, 26.14),
    (46.5, 5.55, 87.24),
]))
fillet4.setExpression("Radius", "Params.fillet4_radius")

doc.recompute()
